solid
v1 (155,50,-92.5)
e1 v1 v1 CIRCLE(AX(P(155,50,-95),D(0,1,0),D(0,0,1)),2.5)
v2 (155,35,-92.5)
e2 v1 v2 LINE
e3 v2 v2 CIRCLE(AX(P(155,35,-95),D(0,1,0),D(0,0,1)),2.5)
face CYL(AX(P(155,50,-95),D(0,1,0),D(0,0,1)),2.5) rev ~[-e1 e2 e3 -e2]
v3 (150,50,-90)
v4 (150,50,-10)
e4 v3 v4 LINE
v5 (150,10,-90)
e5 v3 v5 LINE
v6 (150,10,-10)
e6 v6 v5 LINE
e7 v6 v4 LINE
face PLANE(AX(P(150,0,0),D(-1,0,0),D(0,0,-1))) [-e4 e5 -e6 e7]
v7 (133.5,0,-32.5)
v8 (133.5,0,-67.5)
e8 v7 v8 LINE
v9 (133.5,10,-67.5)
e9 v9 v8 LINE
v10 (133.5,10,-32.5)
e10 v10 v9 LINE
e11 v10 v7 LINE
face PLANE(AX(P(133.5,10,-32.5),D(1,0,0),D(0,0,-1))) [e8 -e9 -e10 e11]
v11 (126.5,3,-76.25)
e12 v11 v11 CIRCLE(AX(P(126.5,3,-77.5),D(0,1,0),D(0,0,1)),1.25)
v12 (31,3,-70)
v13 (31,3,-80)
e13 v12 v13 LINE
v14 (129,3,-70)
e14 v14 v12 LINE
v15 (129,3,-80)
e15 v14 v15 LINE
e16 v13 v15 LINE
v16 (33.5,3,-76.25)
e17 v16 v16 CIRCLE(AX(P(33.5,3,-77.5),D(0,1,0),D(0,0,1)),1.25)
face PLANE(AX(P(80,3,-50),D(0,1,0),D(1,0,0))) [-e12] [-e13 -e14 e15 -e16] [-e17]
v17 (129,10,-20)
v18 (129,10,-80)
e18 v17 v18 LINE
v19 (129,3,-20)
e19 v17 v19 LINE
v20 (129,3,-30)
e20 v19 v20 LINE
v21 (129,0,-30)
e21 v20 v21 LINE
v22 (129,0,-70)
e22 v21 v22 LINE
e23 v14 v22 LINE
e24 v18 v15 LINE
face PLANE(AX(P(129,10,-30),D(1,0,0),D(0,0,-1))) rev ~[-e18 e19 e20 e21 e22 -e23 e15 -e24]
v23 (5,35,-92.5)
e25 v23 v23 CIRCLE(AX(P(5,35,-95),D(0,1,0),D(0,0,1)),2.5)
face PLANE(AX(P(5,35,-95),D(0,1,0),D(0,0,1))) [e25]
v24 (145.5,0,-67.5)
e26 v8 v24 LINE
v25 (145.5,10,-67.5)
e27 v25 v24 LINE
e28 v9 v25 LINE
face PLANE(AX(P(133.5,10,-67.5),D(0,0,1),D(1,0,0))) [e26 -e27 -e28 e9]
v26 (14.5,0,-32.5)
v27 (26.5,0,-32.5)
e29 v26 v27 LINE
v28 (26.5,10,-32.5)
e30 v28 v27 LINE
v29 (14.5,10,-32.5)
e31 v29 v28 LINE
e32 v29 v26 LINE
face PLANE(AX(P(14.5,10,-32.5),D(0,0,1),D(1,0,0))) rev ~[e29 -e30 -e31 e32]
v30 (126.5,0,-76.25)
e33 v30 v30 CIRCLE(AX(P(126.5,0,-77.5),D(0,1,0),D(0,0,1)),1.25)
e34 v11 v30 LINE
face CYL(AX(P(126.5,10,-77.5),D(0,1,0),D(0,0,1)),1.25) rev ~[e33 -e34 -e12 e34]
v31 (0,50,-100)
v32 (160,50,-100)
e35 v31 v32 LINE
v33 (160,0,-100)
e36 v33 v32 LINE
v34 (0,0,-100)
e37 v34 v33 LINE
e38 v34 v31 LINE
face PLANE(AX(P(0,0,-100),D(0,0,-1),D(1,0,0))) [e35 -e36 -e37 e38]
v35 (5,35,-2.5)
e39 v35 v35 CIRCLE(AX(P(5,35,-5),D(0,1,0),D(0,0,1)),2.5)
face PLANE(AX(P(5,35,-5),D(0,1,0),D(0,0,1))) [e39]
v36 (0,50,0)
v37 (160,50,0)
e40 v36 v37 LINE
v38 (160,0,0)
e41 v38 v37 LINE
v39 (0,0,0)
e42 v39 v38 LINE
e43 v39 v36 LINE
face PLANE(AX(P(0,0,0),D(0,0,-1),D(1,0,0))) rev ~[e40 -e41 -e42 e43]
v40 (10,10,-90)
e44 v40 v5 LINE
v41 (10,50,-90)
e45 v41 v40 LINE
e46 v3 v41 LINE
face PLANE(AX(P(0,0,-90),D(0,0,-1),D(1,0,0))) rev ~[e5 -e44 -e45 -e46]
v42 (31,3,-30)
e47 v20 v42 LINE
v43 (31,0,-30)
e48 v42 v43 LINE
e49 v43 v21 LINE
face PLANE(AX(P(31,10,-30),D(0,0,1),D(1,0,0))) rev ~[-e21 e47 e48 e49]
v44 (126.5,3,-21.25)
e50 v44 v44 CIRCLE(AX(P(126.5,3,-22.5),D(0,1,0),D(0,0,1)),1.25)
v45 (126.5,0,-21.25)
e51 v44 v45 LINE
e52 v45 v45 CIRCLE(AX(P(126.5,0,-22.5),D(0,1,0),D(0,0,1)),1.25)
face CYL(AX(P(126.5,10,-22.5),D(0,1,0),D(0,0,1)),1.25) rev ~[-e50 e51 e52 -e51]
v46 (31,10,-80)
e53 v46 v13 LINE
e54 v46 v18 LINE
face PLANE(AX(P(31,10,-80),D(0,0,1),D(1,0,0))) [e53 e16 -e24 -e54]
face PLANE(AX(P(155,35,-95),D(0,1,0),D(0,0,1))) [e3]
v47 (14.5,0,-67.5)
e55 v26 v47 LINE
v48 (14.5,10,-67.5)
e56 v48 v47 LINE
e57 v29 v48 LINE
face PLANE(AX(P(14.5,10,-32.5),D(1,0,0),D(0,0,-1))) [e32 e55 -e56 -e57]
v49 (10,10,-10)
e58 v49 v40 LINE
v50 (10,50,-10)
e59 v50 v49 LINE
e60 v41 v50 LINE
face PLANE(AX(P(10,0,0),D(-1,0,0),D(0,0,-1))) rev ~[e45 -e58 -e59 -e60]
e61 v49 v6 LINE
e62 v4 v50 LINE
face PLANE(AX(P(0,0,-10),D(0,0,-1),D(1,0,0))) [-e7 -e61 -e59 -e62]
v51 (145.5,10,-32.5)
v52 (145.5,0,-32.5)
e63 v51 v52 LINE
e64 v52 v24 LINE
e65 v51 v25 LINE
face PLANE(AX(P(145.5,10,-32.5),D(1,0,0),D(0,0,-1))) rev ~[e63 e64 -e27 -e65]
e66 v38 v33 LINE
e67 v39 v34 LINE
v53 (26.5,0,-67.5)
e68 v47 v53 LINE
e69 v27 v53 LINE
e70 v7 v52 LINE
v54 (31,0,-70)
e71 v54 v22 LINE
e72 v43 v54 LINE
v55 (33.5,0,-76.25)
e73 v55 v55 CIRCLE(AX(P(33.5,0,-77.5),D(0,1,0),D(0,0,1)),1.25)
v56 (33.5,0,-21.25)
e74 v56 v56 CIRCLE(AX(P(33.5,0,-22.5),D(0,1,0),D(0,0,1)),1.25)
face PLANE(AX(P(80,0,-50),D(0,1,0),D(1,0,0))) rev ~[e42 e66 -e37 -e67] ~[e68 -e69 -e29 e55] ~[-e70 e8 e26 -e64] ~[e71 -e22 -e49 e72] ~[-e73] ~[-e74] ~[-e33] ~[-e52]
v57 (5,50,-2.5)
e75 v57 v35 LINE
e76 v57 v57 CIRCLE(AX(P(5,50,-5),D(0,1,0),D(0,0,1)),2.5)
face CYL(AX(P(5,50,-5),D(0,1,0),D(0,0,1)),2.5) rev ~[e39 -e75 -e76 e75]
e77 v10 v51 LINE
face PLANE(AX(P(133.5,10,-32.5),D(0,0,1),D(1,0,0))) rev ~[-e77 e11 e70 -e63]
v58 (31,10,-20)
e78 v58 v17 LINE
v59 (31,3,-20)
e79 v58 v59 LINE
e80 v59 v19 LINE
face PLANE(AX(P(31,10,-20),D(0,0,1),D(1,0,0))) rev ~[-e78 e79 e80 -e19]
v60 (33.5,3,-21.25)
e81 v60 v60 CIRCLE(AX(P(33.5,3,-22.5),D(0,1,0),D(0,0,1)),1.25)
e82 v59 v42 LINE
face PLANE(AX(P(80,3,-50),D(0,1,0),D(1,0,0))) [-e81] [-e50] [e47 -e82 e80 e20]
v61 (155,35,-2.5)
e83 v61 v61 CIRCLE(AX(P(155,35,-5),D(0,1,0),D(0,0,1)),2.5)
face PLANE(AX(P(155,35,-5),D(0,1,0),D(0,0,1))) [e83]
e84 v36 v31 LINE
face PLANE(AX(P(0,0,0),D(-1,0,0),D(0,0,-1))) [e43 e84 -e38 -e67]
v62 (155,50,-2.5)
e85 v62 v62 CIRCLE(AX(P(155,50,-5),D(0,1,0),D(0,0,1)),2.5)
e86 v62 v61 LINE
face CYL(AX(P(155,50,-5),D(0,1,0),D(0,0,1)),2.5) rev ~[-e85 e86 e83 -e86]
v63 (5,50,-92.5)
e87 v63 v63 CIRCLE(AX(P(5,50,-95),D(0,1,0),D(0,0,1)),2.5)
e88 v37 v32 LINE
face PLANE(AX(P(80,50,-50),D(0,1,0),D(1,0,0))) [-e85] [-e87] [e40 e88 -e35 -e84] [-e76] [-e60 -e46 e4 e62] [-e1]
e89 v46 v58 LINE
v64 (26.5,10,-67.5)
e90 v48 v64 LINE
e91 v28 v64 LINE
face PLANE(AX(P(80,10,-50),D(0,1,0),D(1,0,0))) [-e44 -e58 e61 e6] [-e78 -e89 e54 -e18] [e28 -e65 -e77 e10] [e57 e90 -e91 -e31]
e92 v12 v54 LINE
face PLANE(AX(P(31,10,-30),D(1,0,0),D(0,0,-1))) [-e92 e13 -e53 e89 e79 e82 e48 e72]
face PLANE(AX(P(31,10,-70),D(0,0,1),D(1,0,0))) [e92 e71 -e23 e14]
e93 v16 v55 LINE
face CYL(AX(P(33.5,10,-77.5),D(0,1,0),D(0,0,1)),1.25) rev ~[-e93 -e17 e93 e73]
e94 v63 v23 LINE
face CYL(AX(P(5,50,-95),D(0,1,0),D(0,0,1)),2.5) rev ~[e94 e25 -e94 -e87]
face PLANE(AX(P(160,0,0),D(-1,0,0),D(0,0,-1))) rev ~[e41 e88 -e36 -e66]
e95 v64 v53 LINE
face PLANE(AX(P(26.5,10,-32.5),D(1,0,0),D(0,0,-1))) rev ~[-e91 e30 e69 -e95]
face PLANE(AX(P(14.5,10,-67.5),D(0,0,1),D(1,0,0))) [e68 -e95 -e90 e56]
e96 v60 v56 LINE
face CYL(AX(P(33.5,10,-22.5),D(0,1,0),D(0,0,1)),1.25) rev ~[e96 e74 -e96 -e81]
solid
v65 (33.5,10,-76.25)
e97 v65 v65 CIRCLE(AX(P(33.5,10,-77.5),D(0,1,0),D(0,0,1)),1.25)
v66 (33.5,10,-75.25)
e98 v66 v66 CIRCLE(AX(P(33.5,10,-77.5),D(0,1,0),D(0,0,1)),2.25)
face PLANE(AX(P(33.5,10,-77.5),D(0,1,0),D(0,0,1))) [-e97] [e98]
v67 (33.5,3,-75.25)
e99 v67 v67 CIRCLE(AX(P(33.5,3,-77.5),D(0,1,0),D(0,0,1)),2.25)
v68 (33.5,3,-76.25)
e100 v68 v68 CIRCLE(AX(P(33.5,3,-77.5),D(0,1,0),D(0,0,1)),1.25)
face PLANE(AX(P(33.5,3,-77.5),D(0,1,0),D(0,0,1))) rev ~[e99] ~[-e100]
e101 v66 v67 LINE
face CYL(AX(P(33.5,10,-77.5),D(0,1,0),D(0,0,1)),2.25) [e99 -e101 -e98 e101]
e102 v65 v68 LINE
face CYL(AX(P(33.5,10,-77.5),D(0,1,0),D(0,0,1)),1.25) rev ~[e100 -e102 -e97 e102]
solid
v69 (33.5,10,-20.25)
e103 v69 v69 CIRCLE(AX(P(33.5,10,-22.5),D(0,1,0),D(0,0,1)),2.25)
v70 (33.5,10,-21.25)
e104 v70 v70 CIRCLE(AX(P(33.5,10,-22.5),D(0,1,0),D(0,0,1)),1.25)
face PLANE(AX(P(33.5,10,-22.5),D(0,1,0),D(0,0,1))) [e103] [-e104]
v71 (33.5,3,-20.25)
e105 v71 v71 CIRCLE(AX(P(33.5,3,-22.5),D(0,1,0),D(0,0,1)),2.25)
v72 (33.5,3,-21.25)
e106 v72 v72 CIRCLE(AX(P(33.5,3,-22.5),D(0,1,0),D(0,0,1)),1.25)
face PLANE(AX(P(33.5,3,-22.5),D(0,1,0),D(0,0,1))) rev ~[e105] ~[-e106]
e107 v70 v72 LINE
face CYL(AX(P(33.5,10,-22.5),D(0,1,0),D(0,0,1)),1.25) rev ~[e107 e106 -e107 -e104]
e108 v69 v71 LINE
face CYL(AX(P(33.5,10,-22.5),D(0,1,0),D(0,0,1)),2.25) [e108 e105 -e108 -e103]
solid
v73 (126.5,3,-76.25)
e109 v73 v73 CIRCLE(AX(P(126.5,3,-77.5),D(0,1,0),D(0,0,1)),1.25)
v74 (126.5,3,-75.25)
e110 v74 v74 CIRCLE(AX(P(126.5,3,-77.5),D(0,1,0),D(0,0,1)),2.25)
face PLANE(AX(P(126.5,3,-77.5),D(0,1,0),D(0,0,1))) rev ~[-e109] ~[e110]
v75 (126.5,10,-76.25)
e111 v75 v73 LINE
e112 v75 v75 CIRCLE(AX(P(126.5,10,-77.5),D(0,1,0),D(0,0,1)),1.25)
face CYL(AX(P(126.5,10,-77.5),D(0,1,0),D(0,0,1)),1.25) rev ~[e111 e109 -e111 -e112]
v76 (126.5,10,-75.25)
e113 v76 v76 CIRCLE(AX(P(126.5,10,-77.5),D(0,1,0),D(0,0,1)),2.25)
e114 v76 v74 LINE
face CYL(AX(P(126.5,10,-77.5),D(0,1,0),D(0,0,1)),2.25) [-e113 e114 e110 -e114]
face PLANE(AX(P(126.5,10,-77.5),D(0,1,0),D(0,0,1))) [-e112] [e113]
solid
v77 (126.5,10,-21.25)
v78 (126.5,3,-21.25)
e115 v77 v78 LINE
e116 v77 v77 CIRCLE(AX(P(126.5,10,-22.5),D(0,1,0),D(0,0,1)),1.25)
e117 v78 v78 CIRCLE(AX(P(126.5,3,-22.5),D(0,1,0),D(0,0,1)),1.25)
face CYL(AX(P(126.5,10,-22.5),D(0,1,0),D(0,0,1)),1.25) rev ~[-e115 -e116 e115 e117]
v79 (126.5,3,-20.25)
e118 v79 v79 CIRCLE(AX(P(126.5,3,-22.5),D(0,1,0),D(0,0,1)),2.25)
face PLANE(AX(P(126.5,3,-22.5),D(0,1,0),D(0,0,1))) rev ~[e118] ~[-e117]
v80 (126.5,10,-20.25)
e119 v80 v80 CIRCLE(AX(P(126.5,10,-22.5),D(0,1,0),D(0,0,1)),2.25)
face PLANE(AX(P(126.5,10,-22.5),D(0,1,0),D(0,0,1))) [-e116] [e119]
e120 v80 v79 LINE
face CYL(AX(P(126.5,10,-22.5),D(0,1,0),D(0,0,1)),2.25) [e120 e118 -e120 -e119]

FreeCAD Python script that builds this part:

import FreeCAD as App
import Part
import Sketcher
from FreeCAD import Vector
Q = App.Units.Quantity


def faces_at(feature, points):
    """Names of the faces that lie closest to the given points."""
    faces = feature.Shape.Faces
    near = lambda p: min(range(len(faces)), key=lambda i: faces[i].distToShape(Part.Vertex(*p))[0])
    return sorted({f"Face{near(p) + 1}" for p in points})


def add_polygon(sketch, points):
    """Adds a closed chain of lines whose ends are joined by coincident constraints."""
    first, n = sketch.GeometryCount, len(points)
    for a, b in zip(points, points[1:] + points[:1]):
        sketch.addGeometry(Part.LineSegment(App.Vector(*a, 0), App.Vector(*b, 0)), False)
    for i in range(n):
        sketch.addConstraint(Sketcher.Constraint("Coincident", first + i, 2, first + (i + 1) % n, 1))

doc = App.newDocument("Part")
body = doc.addObject("PartDesign::Body", "Body")

sketch1 = doc.addObject("Sketcher::SketchObject", "Sketch")
body.addObject(sketch1)
sketch1.AttachmentSupport = (doc.XZ_Plane, [""])
sketch1.MapMode = "FlatFace"
add_polygon(sketch1, [(0, -100), (0, 0), (160, 0), (160, -100)])
sketch1.addConstraint(Sketcher.Constraint("Vertical", 0))
sketch1.addConstraint(Sketcher.Constraint("Horizontal", 1))
sketch1.addConstraint(Sketcher.Constraint("Vertical", 2))
sketch1.addConstraint(Sketcher.Constraint("Horizontal", 3))
sketch1.addConstraint(Sketcher.Constraint("Coincident", 0, 2, -1, 1))
sketch1.addConstraint(Sketcher.Constraint("DistanceX", 1, 1, 1, 2, Q("160 mm")))
sketch1.addConstraint(Sketcher.Constraint("DistanceY", 0, 1, 0, 2, Q("100 mm")))
pad1 = doc.addObject("PartDesign::Pad", "Pad")
body.addObject(pad1)
pad1.Profile = sketch1
pad1.Length = 50
pad1.Reversed = True
doc.recompute()

thickness = doc.addObject("PartDesign::Thickness", "Thickness")
body.addObject(thickness)
thickness.Base = (pad1, faces_at(pad1, [(80, 50, -50)]))
thickness.Value = 10
thickness.Reversed = True
thickness.Join = "Intersection"

sketch2 = doc.addObject("Sketcher::SketchObject", "Sketch001")
body.addObject(sketch2)
sketch2.AttachmentSupport = (doc.XZ_Plane, [""])
sketch2.MapMode = "FlatFace"
sketch2.AttachmentOffset = App.Placement(Vector(0, 0, -50), App.Rotation())
sketch2.addGeometry(Part.Circle(Vector(155, -95, 0), Vector(0, 0, 1), 2.5), False)
sketch2.addGeometry(Part.Circle(Vector(155, -5, 0), Vector(0, 0, 1), 2.5), False)
sketch2.addGeometry(Part.Circle(Vector(5, -5, 0), Vector(0, 0, 1), 2.5), False)
sketch2.addGeometry(Part.Circle(Vector(5, -95, 0), Vector(0, 0, 1), 2.5), False)
sketch2.addConstraint(Sketcher.Constraint("Equal", 0, 1))
sketch2.addConstraint(Sketcher.Constraint("Equal", 1, 2))
sketch2.addConstraint(Sketcher.Constraint("Equal", 2, 3))
sketch2.addConstraint(Sketcher.Constraint("Horizontal", 1, 3, 2, 3))
sketch2.addConstraint(Sketcher.Constraint("Horizontal", 0, 3, 3, 3))
sketch2.addConstraint(Sketcher.Constraint("Vertical", 0, 3, 1, 3))
sketch2.addConstraint(Sketcher.Constraint("Vertical", 2, 3, 3, 3))
sketch2.addConstraint(Sketcher.Constraint("Diameter", 0, Q("5 mm")))
sketch2.addConstraint(Sketcher.Constraint("DistanceX", -1, 1, 0, 3, Q("155 mm")))
sketch2.addConstraint(Sketcher.Constraint("DistanceY", 0, 3, -1, 1, Q("95 mm")))
sketch2.addConstraint(Sketcher.Constraint("DistanceY", 1, 3, -1, 1, Q("5 mm")))
sketch2.addConstraint(Sketcher.Constraint("DistanceX", -1, 1, 2, 3, Q("5 mm")))
pocket1 = doc.addObject("PartDesign::Pocket", "Pocket")
body.addObject(pocket1)
pocket1.Profile = sketch2
pocket1.Length = 15
pocket1.Reversed = True

sketch3 = doc.addObject("Sketcher::SketchObject", "Sketch002")
body.addObject(sketch3)
sketch3.AttachmentSupport = (doc.XZ_Plane, [""])
sketch3.MapMode = "FlatFace"
sketch3.AttachmentOffset = App.Placement(Vector(0, 0, -10), App.Rotation())
add_polygon(sketch3, [(31, -70), (31, -30), (129, -30), (129, -70)])
sketch3.addConstraint(Sketcher.Constraint("Vertical", 0))
sketch3.addConstraint(Sketcher.Constraint("Horizontal", 1))
sketch3.addConstraint(Sketcher.Constraint("Vertical", 2))
sketch3.addConstraint(Sketcher.Constraint("Horizontal", 3))
sketch3.addConstraint(Sketcher.Constraint("DistanceX", 1, 1, 1, 2, Q("98 mm")))
sketch3.addConstraint(Sketcher.Constraint("DistanceY", 0, 1, 0, 2, Q("40 mm")))
sketch3.addConstraint(Sketcher.Constraint("DistanceX", -1, 1, 0, 2, Q("31 mm")))
sketch3.addConstraint(Sketcher.Constraint("DistanceY", 0, 2, -1, 1, Q("30 mm")))
pocket2 = doc.addObject("PartDesign::Pocket", "Pocket001")
body.addObject(pocket2)
pocket2.Profile = sketch3
pocket2.Length = 10
pocket2.Reversed = True

sketch4 = doc.addObject("Sketcher::SketchObject", "Sketch003")
body.addObject(sketch4)
sketch4.AttachmentSupport = (doc.XZ_Plane, [""])
sketch4.MapMode = "FlatFace"
sketch4.AttachmentOffset = App.Placement(Vector(0, 0, -10), App.Rotation())
sketch4.addGeometry(Part.Circle(Vector(33.5, -77.5, 0), Vector(0, 0, 1), 1.2), False)
sketch4.addGeometry(Part.Circle(Vector(33.5, -22.5, 0), Vector(0, 0, 1), 1.2), False)
sketch4.addGeometry(Part.Circle(Vector(126.5, -77.5, 0), Vector(0, 0, 1), 1.2), False)
sketch4.addGeometry(Part.Circle(Vector(126.5, -22.5, 0), Vector(0, 0, 1), 1.2), False)
sketch4.addConstraint(Sketcher.Constraint("Equal", 0, 1))
sketch4.addConstraint(Sketcher.Constraint("Equal", 1, 2))
sketch4.addConstraint(Sketcher.Constraint("Equal", 2, 3))
sketch4.addConstraint(Sketcher.Constraint("Horizontal", 0, 3, 2, 3))
sketch4.addConstraint(Sketcher.Constraint("Horizontal", 1, 3, 3, 3))
sketch4.addConstraint(Sketcher.Constraint("Vertical", 0, 3, 1, 3))
sketch4.addConstraint(Sketcher.Constraint("Vertical", 2, 3, 3, 3))
sketch4.addConstraint(Sketcher.Constraint("Diameter", 0, Q("2.5 mm")))
sketch4.addConstraint(Sketcher.Constraint("DistanceY", 0, 3, 1, 3, Q("55 mm")))
sketch4.addConstraint(Sketcher.Constraint("DistanceX", 0, 3, 2, 3, Q("93 mm")))
sketch4.addConstraint(Sketcher.Constraint("DistanceX", -1, 1, 0, 3, Q("33.5 mm")))
sketch4.addConstraint(Sketcher.Constraint("DistanceY", 0, 3, -1, 1, Q("77.5 mm")))
pocket3 = doc.addObject("PartDesign::Pocket", "Pocket002")
body.addObject(pocket3)
pocket3.Profile = sketch4
pocket3.Length = 10
pocket3.Reversed = True

sketch5 = doc.addObject("Sketcher::SketchObject", "Sketch004")
body.addObject(sketch5)
sketch5.AttachmentSupport = (doc.XZ_Plane, [""])
sketch5.MapMode = "FlatFace"
sketch5.AttachmentOffset = App.Placement(Vector(0, 0, -10), App.Rotation())
add_polygon(sketch5, [(31, -80), (31, -20), (129, -20), (129, -80)])
sketch5.addConstraint(Sketcher.Constraint("Vertical", 0))
sketch5.addConstraint(Sketcher.Constraint("Horizontal", 1))
sketch5.addConstraint(Sketcher.Constraint("Vertical", 2))
sketch5.addConstraint(Sketcher.Constraint("Horizontal", 3))
sketch5.addConstraint(Sketcher.Constraint("DistanceX", 1, 1, 1, 2, Q("98 mm")))
sketch5.addConstraint(Sketcher.Constraint("DistanceY", 0, 1, 0, 2, Q("60 mm")))
sketch5.addConstraint(Sketcher.Constraint("DistanceX", -1, 1, 0, 2, Q("31 mm")))
sketch5.addConstraint(Sketcher.Constraint("DistanceY", 0, 2, -1, 1, Q("20 mm")))
pocket4 = doc.addObject("PartDesign::Pocket", "Pocket003")
body.addObject(pocket4)
pocket4.Profile = sketch5
pocket4.Length = 7
pocket4.Reversed = True

sketch6 = doc.addObject("Sketcher::SketchObject", "Sketch005")
body.addObject(sketch6)
sketch6.AttachmentSupport = (doc.XZ_Plane, [""])
sketch6.MapMode = "FlatFace"
sketch6.AttachmentOffset = App.Placement(Vector(0, 0, -10), App.Rotation())
add_polygon(sketch6, [(14, -68), (14, -32), (26, -32), (26, -68)])
add_polygon(sketch6, [(134, -68), (134, -32), (146, -32), (146, -68)])
sketch6.addConstraint(Sketcher.Constraint("Vertical", 0))
sketch6.addConstraint(Sketcher.Constraint("Horizontal", 1))
sketch6.addConstraint(Sketcher.Constraint("Vertical", 2))
sketch6.addConstraint(Sketcher.Constraint("Horizontal", 3))
sketch6.addConstraint(Sketcher.Constraint("Vertical", 4))
sketch6.addConstraint(Sketcher.Constraint("Horizontal", 5))
sketch6.addConstraint(Sketcher.Constraint("Vertical", 6))
sketch6.addConstraint(Sketcher.Constraint("Horizontal", 7))
sketch6.addConstraint(Sketcher.Constraint("Horizontal", 1, 2, 4, 2))
sketch6.addConstraint(Sketcher.Constraint("Horizontal", 3, 2, 6, 2))
sketch6.addConstraint(Sketcher.Constraint("Equal", 3, 5))
sketch6.addConstraint(Sketcher.Constraint("DistanceX", 1, 1, 1, 2, Q("12 mm")))
sketch6.addConstraint(Sketcher.Constraint("DistanceY", 0, 1, 0, 2, Q("35 mm")))
sketch6.addConstraint(Sketcher.Constraint("DistanceX", 1, 2, 4, 2, Q("107 mm")))
sketch6.addConstraint(Sketcher.Constraint("DistanceX", -1, 1, 0, 2, Q("14.5 mm")))
sketch6.addConstraint(Sketcher.Constraint("DistanceY", 0, 2, -1, 1, Q("32.5 mm")))
pocket5 = doc.addObject("PartDesign::Pocket", "Pocket004")
body.addObject(pocket5)
pocket5.Profile = sketch6
pocket5.Length = 10
pocket5.Reversed = True
body2 = doc.addObject("PartDesign::Body", "Body001")

sketch7 = doc.addObject("Sketcher::SketchObject", "Sketch006")
body2.addObject(sketch7)
sketch7.AttachmentSupport = (doc.getObject("XZ_Plane001"), [""])
sketch7.MapMode = "FlatFace"
sketch7.AttachmentOffset = App.Placement(Vector(0, 0, -10), App.Rotation())
sketch7.addGeometry(Part.Circle(Vector(33.5, -77.5, 0), Vector(0, 0, 1), 2.2), False)
sketch7.addGeometry(Part.Circle(Vector(33.5, -77.5, 0), Vector(0, 0, 1), 1.2), False)
sketch7.addConstraint(Sketcher.Constraint("Coincident", 1, 3, 0, 3))
sketch7.addConstraint(Sketcher.Constraint("Diameter", 0, Q("4.5 mm")))
sketch7.addConstraint(Sketcher.Constraint("Diameter", 1, Q("2.5 mm")))
sketch7.addConstraint(Sketcher.Constraint("DistanceX", -1, 1, 0, 3, Q("33.5 mm")))
sketch7.addConstraint(Sketcher.Constraint("DistanceY", 0, 3, -1, 1, Q("77.5 mm")))
pad2 = doc.addObject("PartDesign::Pad", "Pad001")
body2.addObject(pad2)
pad2.Profile = sketch7
pad2.Length = 7
body3 = doc.addObject("PartDesign::Body", "Body002")

sketch8 = doc.addObject("Sketcher::SketchObject", "Sketch007")
body3.addObject(sketch8)
sketch8.AttachmentSupport = (doc.getObject("XZ_Plane002"), [""])
sketch8.MapMode = "FlatFace"
sketch8.AttachmentOffset = App.Placement(Vector(0, 0, -10), App.Rotation())
sketch8.addGeometry(Part.Circle(Vector(126.5, -77.5, 0), Vector(0, 0, 1), 2.2), False)
sketch8.addGeometry(Part.Circle(Vector(126.5, -77.5, 0), Vector(0, 0, 1), 1.2), False)
sketch8.addConstraint(Sketcher.Constraint("Coincident", 1, 3, 0, 3))
sketch8.addConstraint(Sketcher.Constraint("Diameter", 0, Q("4.5 mm")))
sketch8.addConstraint(Sketcher.Constraint("Diameter", 1, Q("2.5 mm")))
sketch8.addConstraint(Sketcher.Constraint("DistanceX", -1, 1, 0, 3, Q("126.5 mm")))
sketch8.addConstraint(Sketcher.Constraint("DistanceY", 0, 3, -1, 1, Q("77.5 mm")))
pad3 = doc.addObject("PartDesign::Pad", "Pad002")
body3.addObject(pad3)
pad3.Profile = sketch8
pad3.Length = 7
body4 = doc.addObject("PartDesign::Body", "Body003")

sketch9 = doc.addObject("Sketcher::SketchObject", "Sketch008")
body4.addObject(sketch9)
sketch9.AttachmentSupport = (doc.getObject("XZ_Plane003"), [""])
sketch9.MapMode = "FlatFace"
sketch9.AttachmentOffset = App.Placement(Vector(0, 0, -10), App.Rotation())
sketch9.addGeometry(Part.Circle(Vector(126.5, -22.5, 0), Vector(0, 0, 1), 2.2), False)
sketch9.addGeometry(Part.Circle(Vector(126.5, -22.5, 0), Vector(0, 0, 1), 1.2), False)
sketch9.addConstraint(Sketcher.Constraint("Coincident", 1, 3, 0, 3))
sketch9.addConstraint(Sketcher.Constraint("Diameter", 0, Q("4.5 mm")))
sketch9.addConstraint(Sketcher.Constraint("Diameter", 1, Q("2.5 mm")))
sketch9.addConstraint(Sketcher.Constraint("DistanceX", -1, 1, 0, 3, Q("126.5 mm")))
sketch9.addConstraint(Sketcher.Constraint("DistanceY", 0, 3, -1, 1, Q("22.5 mm")))
pad4 = doc.addObject("PartDesign::Pad", "Pad003")
body4.addObject(pad4)
pad4.Profile = sketch9
pad4.Length = 7
body5 = doc.addObject("PartDesign::Body", "Body004")

sketch10 = doc.addObject("Sketcher::SketchObject", "Sketch009")
body5.addObject(sketch10)
sketch10.AttachmentSupport = (doc.getObject("XZ_Plane004"), [""])
sketch10.MapMode = "FlatFace"
sketch10.AttachmentOffset = App.Placement(Vector(0, 0, -10), App.Rotation())
sketch10.addGeometry(Part.Circle(Vector(33.5, -22.5, 0), Vector(0, 0, 1), 2.2), False)
sketch10.addGeometry(Part.Circle(Vector(33.5, -22.5, 0), Vector(0, 0, 1), 1.2), False)
sketch10.addConstraint(Sketcher.Constraint("Coincident", 1, 3, 0, 3))
sketch10.addConstraint(Sketcher.Constraint("Diameter", 0, Q("4.5 mm")))
sketch10.addConstraint(Sketcher.Constraint("Diameter", 1, Q("2.5 mm")))
sketch10.addConstraint(Sketcher.Constraint("DistanceX", -1, 1, 0, 3, Q("33.5 mm")))
sketch10.addConstraint(Sketcher.Constraint("DistanceY", 0, 3, -1, 1, Q("22.5 mm")))
pad5 = doc.addObject("PartDesign::Pad", "Pad004")
body5.addObject(pad5)
pad5.Profile = sketch10
pad5.Length = 7

doc.recompute()
